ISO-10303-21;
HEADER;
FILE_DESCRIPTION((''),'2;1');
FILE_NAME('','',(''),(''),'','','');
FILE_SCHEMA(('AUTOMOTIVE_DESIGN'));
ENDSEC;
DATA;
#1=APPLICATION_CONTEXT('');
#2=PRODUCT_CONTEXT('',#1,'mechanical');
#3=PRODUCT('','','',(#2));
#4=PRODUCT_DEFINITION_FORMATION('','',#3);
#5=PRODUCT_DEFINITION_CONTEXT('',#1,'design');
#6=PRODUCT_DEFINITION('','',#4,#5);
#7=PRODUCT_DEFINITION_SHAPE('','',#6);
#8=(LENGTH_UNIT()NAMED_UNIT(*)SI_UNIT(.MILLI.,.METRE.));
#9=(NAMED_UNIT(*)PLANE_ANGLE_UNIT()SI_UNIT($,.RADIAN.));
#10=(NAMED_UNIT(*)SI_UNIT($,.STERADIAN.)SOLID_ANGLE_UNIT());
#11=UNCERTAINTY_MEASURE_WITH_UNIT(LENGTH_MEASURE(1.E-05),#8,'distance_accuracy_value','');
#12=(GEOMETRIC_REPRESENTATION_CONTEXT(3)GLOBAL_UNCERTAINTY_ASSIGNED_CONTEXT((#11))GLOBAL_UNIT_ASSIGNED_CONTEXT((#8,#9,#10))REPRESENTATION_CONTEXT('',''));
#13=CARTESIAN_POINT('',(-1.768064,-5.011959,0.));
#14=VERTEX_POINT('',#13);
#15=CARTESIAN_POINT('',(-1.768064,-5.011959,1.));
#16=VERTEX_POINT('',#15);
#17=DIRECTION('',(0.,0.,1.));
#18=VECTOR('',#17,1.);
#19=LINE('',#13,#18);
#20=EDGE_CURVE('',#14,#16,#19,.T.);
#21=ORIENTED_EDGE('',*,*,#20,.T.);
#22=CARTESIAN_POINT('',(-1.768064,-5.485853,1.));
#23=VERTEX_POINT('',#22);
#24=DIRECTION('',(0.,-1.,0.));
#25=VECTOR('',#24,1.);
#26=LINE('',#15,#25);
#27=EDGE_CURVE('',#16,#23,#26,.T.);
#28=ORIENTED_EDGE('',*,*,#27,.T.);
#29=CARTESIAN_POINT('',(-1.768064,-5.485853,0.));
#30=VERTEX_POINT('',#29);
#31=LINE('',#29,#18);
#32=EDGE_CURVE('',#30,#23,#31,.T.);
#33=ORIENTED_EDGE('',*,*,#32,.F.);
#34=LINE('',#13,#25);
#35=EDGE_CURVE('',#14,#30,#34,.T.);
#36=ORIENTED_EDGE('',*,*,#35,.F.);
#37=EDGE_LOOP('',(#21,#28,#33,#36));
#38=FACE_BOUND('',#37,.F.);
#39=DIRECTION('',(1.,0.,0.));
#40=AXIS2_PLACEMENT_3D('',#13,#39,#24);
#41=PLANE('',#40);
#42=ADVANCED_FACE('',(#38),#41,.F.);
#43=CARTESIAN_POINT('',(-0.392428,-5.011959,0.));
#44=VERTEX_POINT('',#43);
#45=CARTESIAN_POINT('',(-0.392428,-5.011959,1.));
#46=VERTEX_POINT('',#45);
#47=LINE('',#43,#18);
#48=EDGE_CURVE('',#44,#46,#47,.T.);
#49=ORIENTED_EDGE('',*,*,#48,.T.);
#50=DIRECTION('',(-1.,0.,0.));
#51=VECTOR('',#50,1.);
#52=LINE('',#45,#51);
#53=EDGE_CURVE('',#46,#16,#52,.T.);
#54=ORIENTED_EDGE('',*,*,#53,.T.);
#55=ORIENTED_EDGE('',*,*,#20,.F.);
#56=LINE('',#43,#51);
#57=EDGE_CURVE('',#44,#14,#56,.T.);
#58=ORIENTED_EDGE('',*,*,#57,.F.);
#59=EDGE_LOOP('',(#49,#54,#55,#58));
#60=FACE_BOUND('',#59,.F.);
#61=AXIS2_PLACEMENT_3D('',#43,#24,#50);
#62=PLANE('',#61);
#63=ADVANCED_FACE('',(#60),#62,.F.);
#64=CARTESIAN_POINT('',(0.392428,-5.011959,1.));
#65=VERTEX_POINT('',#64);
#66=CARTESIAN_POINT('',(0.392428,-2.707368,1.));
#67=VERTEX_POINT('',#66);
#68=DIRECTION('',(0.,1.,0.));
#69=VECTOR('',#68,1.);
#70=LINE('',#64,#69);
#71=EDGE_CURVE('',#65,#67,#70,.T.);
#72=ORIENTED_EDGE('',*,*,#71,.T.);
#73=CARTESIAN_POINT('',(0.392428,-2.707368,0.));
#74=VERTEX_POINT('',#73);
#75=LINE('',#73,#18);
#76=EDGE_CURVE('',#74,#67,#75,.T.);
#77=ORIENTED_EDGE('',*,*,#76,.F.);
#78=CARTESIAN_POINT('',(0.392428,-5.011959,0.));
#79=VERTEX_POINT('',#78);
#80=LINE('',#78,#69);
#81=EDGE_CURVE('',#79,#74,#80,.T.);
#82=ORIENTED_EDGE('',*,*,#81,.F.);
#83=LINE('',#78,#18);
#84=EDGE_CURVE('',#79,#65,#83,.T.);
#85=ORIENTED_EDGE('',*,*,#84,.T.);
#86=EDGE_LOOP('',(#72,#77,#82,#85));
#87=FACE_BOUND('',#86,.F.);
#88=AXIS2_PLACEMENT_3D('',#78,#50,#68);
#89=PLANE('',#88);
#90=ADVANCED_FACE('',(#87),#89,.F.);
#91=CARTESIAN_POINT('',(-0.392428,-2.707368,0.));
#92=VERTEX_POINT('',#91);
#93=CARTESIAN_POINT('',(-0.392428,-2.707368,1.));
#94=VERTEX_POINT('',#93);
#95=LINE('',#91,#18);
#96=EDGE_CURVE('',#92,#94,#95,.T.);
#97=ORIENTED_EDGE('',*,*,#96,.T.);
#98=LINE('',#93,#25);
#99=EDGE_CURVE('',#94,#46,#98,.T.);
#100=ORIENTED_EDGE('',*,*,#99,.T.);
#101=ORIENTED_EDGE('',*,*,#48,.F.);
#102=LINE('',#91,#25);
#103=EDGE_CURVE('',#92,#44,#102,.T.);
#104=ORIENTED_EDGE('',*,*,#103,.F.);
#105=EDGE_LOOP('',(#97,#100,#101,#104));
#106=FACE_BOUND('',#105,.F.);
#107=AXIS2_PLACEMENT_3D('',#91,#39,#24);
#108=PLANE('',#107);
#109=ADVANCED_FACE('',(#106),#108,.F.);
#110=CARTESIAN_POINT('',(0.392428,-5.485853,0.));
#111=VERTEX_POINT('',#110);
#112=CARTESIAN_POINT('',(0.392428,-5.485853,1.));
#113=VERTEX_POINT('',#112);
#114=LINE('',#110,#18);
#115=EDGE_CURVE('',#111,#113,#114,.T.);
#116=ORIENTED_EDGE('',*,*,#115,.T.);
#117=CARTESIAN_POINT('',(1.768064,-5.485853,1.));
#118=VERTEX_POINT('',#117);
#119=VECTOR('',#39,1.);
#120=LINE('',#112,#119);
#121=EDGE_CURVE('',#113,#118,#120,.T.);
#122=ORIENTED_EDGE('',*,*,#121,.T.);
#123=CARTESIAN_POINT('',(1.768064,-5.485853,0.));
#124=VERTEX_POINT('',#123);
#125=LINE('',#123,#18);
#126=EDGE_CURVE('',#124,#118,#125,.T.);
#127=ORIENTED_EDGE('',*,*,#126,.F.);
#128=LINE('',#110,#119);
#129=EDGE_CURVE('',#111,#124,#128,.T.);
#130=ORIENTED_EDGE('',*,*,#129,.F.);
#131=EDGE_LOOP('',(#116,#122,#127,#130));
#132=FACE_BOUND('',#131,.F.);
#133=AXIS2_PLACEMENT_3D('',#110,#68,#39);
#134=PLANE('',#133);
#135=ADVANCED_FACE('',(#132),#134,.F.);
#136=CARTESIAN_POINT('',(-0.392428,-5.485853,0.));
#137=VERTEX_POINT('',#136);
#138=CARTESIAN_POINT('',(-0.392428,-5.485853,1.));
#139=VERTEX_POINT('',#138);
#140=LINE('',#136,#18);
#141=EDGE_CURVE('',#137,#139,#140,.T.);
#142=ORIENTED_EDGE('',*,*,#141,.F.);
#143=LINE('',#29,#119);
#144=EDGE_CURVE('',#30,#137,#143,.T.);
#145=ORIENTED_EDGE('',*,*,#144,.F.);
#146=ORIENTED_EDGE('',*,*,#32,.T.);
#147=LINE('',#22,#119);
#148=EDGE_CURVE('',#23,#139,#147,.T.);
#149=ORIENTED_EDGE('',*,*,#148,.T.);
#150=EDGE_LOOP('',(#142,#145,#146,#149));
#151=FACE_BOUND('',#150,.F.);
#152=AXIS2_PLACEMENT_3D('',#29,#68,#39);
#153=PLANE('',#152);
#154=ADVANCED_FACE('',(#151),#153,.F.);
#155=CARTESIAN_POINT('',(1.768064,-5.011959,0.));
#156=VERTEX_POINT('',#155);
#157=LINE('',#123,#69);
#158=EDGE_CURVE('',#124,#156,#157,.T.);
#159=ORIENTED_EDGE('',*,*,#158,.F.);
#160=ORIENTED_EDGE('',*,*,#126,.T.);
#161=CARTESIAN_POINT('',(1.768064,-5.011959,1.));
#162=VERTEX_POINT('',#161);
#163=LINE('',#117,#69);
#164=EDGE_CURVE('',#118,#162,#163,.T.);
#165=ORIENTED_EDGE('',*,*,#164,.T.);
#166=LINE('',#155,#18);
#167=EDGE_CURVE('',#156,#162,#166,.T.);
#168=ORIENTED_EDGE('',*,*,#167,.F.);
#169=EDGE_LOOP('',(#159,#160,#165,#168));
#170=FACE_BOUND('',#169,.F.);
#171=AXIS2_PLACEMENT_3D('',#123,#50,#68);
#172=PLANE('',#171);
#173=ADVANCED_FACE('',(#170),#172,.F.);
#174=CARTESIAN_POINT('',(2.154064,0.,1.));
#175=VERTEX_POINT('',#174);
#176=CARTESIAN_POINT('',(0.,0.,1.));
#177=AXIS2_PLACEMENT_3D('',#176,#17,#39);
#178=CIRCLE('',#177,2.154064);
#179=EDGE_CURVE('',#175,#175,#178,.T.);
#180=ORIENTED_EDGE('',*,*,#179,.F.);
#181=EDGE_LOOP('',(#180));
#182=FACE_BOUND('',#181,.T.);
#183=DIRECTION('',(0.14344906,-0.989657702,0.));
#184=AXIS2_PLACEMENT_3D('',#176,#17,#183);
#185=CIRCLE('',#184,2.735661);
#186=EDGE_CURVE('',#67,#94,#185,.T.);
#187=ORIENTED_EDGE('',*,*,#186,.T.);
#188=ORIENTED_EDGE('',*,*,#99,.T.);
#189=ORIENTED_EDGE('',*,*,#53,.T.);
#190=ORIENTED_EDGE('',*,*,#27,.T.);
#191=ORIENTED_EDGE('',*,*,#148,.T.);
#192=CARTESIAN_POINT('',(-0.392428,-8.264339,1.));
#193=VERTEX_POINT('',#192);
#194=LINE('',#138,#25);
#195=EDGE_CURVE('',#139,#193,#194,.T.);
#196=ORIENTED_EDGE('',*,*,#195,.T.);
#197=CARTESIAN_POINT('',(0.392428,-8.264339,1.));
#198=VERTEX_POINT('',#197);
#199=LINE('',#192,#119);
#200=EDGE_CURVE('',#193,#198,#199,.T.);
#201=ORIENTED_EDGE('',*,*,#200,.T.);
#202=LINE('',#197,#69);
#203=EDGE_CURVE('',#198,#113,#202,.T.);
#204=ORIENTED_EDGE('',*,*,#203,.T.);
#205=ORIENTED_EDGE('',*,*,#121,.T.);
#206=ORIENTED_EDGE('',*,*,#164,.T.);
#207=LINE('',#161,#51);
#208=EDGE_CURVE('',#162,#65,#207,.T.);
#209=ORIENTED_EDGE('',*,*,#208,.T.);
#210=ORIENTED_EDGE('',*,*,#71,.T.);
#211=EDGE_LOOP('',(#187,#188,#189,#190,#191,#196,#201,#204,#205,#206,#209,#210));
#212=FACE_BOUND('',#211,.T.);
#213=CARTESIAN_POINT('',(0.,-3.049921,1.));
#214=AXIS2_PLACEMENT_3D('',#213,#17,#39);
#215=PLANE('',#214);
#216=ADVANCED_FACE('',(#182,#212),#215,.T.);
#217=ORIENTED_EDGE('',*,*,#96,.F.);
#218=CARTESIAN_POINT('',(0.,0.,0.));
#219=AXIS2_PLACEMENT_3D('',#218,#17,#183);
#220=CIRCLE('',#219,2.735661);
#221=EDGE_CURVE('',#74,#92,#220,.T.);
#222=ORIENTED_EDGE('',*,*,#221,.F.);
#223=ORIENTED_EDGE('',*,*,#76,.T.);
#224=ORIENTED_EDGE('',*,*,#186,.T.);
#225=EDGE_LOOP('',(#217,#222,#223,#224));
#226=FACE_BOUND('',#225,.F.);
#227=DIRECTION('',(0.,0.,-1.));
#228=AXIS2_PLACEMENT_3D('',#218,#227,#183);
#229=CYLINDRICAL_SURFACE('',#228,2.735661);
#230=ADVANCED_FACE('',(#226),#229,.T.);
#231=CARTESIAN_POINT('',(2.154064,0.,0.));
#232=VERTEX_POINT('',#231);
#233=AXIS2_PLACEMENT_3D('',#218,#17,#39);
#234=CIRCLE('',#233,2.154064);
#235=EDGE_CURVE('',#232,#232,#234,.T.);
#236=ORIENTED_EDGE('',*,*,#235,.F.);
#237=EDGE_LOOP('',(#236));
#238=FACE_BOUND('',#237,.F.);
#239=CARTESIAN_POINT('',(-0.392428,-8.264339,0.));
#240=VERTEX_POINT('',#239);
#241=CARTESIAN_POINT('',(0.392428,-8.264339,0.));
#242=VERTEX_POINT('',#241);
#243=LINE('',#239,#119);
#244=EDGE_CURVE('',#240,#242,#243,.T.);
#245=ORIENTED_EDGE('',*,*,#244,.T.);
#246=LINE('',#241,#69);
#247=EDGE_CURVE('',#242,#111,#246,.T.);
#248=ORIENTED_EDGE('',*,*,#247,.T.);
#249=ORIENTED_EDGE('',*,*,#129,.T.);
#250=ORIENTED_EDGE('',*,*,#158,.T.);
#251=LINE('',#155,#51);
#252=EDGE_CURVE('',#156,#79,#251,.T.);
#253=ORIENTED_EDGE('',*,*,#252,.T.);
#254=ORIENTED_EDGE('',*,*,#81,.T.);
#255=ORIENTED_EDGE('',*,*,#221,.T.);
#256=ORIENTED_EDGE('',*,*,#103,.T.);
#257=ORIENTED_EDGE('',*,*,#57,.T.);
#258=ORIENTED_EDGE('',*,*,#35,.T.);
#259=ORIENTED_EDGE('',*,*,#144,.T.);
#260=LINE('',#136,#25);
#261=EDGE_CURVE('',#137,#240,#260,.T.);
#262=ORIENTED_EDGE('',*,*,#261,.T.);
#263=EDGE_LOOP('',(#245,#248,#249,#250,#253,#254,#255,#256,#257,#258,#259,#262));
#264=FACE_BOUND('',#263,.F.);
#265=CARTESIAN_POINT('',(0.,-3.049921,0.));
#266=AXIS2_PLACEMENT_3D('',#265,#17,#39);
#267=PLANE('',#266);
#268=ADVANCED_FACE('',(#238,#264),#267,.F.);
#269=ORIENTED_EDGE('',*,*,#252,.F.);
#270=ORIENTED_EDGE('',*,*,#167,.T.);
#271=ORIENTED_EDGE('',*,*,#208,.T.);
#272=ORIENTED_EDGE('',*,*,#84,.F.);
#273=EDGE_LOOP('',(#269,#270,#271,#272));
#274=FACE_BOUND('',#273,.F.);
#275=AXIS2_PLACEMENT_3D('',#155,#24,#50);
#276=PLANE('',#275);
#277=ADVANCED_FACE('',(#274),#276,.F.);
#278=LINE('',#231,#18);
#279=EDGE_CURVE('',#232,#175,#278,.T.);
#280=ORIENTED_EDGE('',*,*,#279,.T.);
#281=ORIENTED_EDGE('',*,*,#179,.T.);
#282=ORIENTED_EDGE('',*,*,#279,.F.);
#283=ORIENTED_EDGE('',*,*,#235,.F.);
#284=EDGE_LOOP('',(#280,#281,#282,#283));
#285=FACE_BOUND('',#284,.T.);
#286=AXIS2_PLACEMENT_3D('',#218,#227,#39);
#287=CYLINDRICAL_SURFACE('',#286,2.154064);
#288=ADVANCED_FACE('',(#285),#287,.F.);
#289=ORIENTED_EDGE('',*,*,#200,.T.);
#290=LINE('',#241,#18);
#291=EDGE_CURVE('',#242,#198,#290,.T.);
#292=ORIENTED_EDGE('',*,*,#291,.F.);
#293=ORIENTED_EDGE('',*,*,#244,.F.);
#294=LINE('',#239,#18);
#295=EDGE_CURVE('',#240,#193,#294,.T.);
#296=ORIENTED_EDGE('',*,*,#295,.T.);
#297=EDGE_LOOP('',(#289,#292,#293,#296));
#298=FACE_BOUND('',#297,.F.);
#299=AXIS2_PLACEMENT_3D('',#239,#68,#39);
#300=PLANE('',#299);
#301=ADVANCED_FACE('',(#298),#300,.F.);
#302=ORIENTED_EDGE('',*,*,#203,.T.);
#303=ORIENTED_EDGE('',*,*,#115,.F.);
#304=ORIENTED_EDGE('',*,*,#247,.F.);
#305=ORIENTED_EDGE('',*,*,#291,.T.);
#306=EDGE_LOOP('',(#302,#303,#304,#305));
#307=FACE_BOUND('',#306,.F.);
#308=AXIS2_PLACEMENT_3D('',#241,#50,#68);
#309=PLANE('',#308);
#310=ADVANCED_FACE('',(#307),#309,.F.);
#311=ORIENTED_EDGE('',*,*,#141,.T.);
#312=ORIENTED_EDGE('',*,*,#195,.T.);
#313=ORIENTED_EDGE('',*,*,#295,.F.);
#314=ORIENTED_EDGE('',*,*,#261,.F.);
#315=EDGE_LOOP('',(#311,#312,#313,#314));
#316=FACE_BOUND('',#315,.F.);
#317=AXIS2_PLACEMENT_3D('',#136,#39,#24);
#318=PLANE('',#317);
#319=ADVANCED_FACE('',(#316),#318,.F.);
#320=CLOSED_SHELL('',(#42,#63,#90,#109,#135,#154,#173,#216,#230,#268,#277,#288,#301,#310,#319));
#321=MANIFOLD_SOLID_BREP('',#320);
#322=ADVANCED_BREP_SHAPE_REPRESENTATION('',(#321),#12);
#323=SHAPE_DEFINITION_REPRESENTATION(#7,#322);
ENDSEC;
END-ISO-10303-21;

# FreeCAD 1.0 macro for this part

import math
import FreeCAD as App
import Part
import Sketcher
Q = App.Units.Quantity

doc = App.newDocument("Part")
body = doc.addObject("PartDesign::Body", "Body")

# Sketch on XY plane
sketch1 = doc.addObject("Sketcher::SketchObject", "Sketch")
body.addObject(sketch1)
sketch1.AttachmentSupport = (doc.XY_Plane, [""])
sketch1.MapMode = "FlatFace"
sketch1.addGeometry([
    Part.LineSegment(App.Vector(0.392428, -5.011959, 0), App.Vector(0.392428, -2.707368, 0)),  # 0
    Part.ArcOfCircle(Part.Circle(App.Vector(0, 0, 0), App.Vector(0, 0, 1), 2.735661), math.radians(-81.752522), math.radians(261.752522)),  # 1
    Part.LineSegment(App.Vector(-0.392428, -2.707368, 0), App.Vector(-0.392428, -5.011959, 0)),  # 2
    Part.LineSegment(App.Vector(-0.392428, -5.011959, 0), App.Vector(-1.768064, -5.011959, 0)),  # 3
    Part.LineSegment(App.Vector(-1.768064, -5.011959, 0), App.Vector(-1.768064, -5.485853, 0)),  # 4
    Part.LineSegment(App.Vector(-1.768064, -5.485853, 0), App.Vector(-0.392428, -5.485853, 0)),  # 5
    Part.LineSegment(App.Vector(-0.392428, -5.485853, 0), App.Vector(-0.392428, -8.264339, 0)),  # 6
    Part.LineSegment(App.Vector(-0.392428, -8.264339, 0), App.Vector(0.392428, -8.264339, 0)),  # 7
    Part.LineSegment(App.Vector(0.392428, -8.264339, 0), App.Vector(0.392428, -5.485853, 0)),  # 8
    Part.LineSegment(App.Vector(0.392428, -5.485853, 0), App.Vector(1.768064, -5.485853, 0)),  # 9
    Part.LineSegment(App.Vector(1.768064, -5.485853, 0), App.Vector(1.768064, -5.011959, 0)),  # 10
    Part.LineSegment(App.Vector(1.768064, -5.011959, 0), App.Vector(0.392428, -5.011959, 0)),  # 11
    Part.Circle(App.Vector(0, 0, 0), App.Vector(0, 0, 1), 2.154064),  # 12
], False)
sketch1.addConstraint([
    Sketcher.Constraint("Coincident", 0, 2, 1, 1),
    Sketcher.Constraint("Coincident", 1, 2, 2, 1),
    Sketcher.Constraint("Coincident", 2, 2, 3, 1),
    Sketcher.Constraint("Coincident", 3, 2, 4, 1),
    Sketcher.Constraint("Coincident", 4, 2, 5, 1),
    Sketcher.Constraint("Coincident", 5, 2, 6, 1),
    Sketcher.Constraint("Coincident", 6, 2, 7, 1),
    Sketcher.Constraint("Coincident", 7, 2, 8, 1),
    Sketcher.Constraint("Coincident", 8, 2, 9, 1),
    Sketcher.Constraint("Coincident", 9, 2, 10, 1),
    Sketcher.Constraint("Coincident", 10, 2, 11, 1),
    Sketcher.Constraint("Coincident", 11, 2, 0, 1),
    Sketcher.Constraint("Vertical", 0),
    Sketcher.Constraint("Vertical", 2),
    Sketcher.Constraint("Horizontal", 3),
    Sketcher.Constraint("Vertical", 4),
    Sketcher.Constraint("Horizontal", 5),
    Sketcher.Constraint("Vertical", 6),
    Sketcher.Constraint("Horizontal", 7),
    Sketcher.Constraint("Vertical", 8),
    Sketcher.Constraint("Horizontal", 9),
    Sketcher.Constraint("Vertical", 10),
    Sketcher.Constraint("Horizontal", 11),
    Sketcher.Constraint("Coincident", 1, 3, -1, 1),
    Sketcher.Constraint("Coincident", 12, 3, -1, 1),
    Sketcher.Constraint("Symmetric", 5, 2, 8, 2, -2),
    Sketcher.Constraint("Symmetric", 3, 2, 10, 2, -2),
    Sketcher.Constraint("Horizontal", 0, 2, 1, 2),
    Sketcher.Constraint("Vertical", 2, 2, 5, 2),
    Sketcher.Constraint("Radius", 1, Q("2.735661 mm")),
    Sketcher.Constraint("Diameter", 12, Q("4.308128 mm")),
    Sketcher.Constraint("DistanceY", 0, 1, 0, 2, Q("2.304591 mm")),
    Sketcher.Constraint("DistanceX", 3, 2, 3, 1, Q("1.375636 mm")),
    Sketcher.Constraint("DistanceX", 7, 1, 7, 2, Q("0.784856 mm")),
    Sketcher.Constraint("DistanceY", 4, 2, 4, 1, Q("0.473894 mm")),
    Sketcher.Constraint("DistanceY", 6, 2, 6, 1, Q("2.778486 mm")),
])
pad1 = doc.addObject("PartDesign::Pad", "Pad")
body.addObject(pad1)
pad1.Profile = sketch1
pad1.Length = 1

doc.recompute()
